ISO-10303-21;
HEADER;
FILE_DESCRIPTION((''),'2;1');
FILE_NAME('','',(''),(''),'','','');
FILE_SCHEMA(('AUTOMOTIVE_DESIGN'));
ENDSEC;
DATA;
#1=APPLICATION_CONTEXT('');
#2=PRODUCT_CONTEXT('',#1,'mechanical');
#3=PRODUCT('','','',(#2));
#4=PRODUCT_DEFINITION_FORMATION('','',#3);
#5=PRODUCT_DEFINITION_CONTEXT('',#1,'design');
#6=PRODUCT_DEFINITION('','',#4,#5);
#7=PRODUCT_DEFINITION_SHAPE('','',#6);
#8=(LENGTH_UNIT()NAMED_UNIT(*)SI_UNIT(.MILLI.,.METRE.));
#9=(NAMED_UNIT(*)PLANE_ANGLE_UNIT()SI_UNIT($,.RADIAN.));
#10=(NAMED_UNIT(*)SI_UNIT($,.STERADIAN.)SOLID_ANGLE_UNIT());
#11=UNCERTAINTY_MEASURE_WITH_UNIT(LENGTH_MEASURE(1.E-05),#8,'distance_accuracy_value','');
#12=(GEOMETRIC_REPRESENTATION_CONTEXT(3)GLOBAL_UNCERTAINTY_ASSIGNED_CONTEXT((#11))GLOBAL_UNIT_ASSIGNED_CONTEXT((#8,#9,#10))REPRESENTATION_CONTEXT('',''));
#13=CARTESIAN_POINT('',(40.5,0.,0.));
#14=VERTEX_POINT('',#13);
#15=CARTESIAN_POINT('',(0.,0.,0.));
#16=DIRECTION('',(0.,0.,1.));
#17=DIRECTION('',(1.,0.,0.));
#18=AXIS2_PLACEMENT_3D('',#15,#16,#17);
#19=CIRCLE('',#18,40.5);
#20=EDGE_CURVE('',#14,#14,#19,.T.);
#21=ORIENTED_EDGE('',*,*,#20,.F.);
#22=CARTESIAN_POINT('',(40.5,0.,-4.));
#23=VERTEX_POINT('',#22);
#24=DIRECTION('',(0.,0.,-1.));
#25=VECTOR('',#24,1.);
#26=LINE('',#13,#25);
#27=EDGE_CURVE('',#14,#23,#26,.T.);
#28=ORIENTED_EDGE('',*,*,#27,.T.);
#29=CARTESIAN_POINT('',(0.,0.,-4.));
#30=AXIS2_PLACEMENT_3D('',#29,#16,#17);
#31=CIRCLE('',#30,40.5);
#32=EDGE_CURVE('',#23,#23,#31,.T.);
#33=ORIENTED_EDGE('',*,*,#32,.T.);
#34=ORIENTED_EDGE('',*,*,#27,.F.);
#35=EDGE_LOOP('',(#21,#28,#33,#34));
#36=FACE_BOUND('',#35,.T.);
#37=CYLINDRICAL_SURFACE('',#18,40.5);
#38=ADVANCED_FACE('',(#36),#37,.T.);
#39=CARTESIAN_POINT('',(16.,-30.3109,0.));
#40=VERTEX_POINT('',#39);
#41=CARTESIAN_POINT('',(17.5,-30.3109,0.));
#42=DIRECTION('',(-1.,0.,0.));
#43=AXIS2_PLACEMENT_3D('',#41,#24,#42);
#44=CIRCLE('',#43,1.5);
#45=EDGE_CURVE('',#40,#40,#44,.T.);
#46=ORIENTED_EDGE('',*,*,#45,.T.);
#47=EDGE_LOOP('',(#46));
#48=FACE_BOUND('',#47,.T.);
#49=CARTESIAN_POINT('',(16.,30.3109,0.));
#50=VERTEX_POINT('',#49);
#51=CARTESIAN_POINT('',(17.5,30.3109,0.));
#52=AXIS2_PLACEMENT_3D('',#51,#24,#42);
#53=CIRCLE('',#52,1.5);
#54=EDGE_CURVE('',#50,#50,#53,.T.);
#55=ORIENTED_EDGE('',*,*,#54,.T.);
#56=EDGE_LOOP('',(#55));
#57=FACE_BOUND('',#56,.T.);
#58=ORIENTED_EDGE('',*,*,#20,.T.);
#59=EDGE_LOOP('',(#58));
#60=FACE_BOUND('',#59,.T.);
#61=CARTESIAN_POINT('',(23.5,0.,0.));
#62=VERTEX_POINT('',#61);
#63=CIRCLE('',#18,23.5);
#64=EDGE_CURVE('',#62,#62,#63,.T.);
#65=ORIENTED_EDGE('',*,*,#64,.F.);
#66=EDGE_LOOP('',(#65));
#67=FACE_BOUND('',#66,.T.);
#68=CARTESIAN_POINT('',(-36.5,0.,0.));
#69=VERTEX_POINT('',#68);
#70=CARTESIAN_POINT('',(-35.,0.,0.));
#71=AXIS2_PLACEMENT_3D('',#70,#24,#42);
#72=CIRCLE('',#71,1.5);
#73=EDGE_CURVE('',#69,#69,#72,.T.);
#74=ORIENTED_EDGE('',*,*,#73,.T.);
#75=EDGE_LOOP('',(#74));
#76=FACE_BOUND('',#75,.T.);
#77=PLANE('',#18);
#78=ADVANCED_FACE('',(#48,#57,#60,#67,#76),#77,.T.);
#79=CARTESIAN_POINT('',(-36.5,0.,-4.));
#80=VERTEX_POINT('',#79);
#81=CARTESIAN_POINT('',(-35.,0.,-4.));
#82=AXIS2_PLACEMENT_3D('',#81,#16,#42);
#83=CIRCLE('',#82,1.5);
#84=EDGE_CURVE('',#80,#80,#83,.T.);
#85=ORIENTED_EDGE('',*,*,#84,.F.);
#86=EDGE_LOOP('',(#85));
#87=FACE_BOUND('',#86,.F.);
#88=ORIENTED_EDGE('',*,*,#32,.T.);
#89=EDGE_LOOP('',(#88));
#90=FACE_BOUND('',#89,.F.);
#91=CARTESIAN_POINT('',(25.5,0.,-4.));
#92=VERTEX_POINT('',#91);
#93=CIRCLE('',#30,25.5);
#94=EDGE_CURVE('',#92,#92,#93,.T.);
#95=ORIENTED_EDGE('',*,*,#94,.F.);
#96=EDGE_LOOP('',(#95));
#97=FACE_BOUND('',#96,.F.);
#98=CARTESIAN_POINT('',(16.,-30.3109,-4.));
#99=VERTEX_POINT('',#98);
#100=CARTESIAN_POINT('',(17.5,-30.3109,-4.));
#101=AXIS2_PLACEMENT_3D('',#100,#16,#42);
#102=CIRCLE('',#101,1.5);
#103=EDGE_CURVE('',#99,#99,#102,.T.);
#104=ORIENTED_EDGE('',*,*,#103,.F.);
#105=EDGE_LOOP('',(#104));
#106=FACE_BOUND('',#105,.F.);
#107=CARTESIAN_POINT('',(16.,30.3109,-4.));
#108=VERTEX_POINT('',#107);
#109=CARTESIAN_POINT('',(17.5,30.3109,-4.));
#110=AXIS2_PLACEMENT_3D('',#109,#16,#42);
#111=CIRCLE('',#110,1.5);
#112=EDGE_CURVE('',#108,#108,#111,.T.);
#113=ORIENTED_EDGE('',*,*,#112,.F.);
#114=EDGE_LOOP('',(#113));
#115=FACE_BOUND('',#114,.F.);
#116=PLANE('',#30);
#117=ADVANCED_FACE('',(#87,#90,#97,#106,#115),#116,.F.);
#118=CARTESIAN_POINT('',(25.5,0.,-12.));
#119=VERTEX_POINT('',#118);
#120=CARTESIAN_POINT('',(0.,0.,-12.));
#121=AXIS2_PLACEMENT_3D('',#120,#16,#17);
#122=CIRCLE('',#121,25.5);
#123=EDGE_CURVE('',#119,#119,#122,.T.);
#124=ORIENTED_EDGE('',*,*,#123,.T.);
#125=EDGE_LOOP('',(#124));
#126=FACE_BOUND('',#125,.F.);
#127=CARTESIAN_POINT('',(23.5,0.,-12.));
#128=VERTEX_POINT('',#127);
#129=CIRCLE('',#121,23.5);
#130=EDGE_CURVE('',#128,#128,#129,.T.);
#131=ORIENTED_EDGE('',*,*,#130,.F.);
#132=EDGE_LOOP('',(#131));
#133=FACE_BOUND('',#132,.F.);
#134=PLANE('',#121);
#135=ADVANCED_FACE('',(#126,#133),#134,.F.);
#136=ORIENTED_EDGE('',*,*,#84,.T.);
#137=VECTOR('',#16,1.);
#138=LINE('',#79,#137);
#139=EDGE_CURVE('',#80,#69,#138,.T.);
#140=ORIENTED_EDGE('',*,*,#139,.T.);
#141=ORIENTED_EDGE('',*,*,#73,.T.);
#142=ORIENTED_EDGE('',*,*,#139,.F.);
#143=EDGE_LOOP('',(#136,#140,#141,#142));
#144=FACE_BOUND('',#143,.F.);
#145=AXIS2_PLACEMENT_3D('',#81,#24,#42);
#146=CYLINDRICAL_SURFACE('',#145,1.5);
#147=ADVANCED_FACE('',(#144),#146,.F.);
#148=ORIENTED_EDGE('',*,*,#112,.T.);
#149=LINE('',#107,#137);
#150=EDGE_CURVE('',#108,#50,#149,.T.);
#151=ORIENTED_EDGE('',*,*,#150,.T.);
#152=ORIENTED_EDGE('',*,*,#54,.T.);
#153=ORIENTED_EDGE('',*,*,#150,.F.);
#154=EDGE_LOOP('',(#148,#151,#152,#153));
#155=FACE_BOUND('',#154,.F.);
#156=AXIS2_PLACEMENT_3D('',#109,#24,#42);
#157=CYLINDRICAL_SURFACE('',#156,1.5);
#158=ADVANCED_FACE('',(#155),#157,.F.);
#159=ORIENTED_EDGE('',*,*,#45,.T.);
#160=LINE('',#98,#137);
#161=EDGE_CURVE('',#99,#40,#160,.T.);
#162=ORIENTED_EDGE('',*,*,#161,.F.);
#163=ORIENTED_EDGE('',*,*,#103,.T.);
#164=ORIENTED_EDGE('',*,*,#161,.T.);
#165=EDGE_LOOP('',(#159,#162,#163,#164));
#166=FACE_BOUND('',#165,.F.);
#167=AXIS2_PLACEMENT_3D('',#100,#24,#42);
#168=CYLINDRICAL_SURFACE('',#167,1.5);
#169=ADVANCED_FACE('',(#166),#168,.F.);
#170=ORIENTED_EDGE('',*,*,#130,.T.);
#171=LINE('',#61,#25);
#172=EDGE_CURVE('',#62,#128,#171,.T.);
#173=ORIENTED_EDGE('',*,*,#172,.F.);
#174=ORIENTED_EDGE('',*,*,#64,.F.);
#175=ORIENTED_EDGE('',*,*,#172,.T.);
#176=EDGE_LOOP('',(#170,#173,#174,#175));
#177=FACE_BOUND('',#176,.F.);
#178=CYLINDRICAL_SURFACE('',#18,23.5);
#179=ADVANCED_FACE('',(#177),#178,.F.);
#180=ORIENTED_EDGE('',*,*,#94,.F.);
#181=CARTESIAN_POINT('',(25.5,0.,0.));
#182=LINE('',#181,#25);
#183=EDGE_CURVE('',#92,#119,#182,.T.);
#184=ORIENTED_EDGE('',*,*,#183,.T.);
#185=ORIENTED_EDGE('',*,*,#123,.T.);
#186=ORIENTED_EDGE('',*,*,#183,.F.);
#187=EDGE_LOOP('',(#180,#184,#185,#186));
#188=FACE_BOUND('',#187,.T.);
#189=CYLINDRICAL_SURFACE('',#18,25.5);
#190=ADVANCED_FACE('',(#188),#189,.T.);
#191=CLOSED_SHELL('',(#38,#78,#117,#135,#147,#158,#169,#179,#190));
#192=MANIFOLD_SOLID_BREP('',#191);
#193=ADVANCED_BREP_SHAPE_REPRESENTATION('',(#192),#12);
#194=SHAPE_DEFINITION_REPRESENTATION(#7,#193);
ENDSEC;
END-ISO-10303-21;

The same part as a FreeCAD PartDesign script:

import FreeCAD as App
import Part
import Sketcher
from FreeCAD import Vector
Q = App.Units.Quantity

doc = App.newDocument("Part")
params = doc.addObject("Spreadsheet::Sheet", "Params")
for row, (alias, value) in enumerate([
    ("sketch1_diameter", "81 mm"),
    ("sketch1_diameter2", "51 mm"),
    ("pad1_length", "4 mm"),
    ("sketch2_diameter", "51 mm"),
    ("sketch2_diameter2", "47 mm"),
    ("pad2_length", "12 mm"),
    ("sketch3_diameter", "3 mm"),
    ("pocket1_length", "12 mm"),
], start=1):
    params.set(f"A{row}", alias)
    params.set(f"B{row}", "=" + value)
    params.setAlias(f"B{row}", alias)

body = doc.addObject("PartDesign::Body", "Body")

# Sketch on XY plane
sketch1 = doc.addObject("Sketcher::SketchObject", "Sketch")
body.addObject(sketch1)
sketch1.AttachmentSupport = (doc.XY_Plane, [""])
sketch1.MapMode = "FlatFace"
sketch1.addGeometry(Part.Circle(Vector(0, 0, 0), Vector(0, 0, 1), 40), False)
sketch1.addGeometry(Part.Circle(Vector(0, 0, 0), Vector(0, 0, 1), 26), False)
sketch1.addConstraint(Sketcher.Constraint("Coincident", 0, 3, -1, 1))
sketch1.addConstraint(Sketcher.Constraint("Coincident", 1, 3, -1, 1))
sketch1.addConstraint(Sketcher.Constraint("Diameter", 0, Q("81 mm")))
sketch1.addConstraint(Sketcher.Constraint("Diameter", 1, Q("51 mm")))
sketch1.setExpression("Constraints[2]", "Params.sketch1_diameter")
sketch1.setExpression("Constraints[3]", "Params.sketch1_diameter2")
pad1 = doc.addObject("PartDesign::Pad", "Pad")
body.addObject(pad1)
pad1.Profile = sketch1
pad1.setExpression("Length", "Params.pad1_length")
pad1.Reversed = True

# Sketch on XY plane
sketch2 = doc.addObject("Sketcher::SketchObject", "Sketch001")
body.addObject(sketch2)
sketch2.AttachmentSupport = (doc.XY_Plane, [""])
sketch2.MapMode = "FlatFace"
sketch2.addGeometry(Part.Circle(Vector(0, 0, 0), Vector(0, 0, 1), 26), False)
sketch2.addGeometry(Part.Circle(Vector(0, 0, 0), Vector(0, 0, 1), 24), False)
sketch2.addConstraint(Sketcher.Constraint("Coincident", 0, 3, -1, 1))
sketch2.addConstraint(Sketcher.Constraint("Coincident", 1, 3, -1, 1))
sketch2.addConstraint(Sketcher.Constraint("Diameter", 0, Q("51 mm")))
sketch2.addConstraint(Sketcher.Constraint("Diameter", 1, Q("47 mm")))
sketch2.setExpression("Constraints[2]", "Params.sketch2_diameter")
sketch2.setExpression("Constraints[3]", "Params.sketch2_diameter2")
pad2 = doc.addObject("PartDesign::Pad", "Pad001")
body.addObject(pad2)
pad2.Profile = sketch2
pad2.setExpression("Length", "Params.pad2_length")
pad2.Reversed = True

# Sketch on XY plane
sketch3 = doc.addObject("Sketcher::SketchObject", "Sketch002")
body.addObject(sketch3)
sketch3.AttachmentSupport = (doc.XY_Plane, [""])
sketch3.MapMode = "FlatFace"
sketch3.AttachmentOffset = App.Placement(Vector(0, 0, -4), App.Rotation())
sketch3.addGeometry(Part.Circle(Vector(-35, 0, 0), Vector(0, 0, 1), 1.5), False)
sketch3.addGeometry(Part.Circle(Vector(17.5, 30.3, 0), Vector(0, 0, 1), 1.5), False)
sketch3.addGeometry(Part.Circle(Vector(17.5, -30.3, 0), Vector(0, 0, 1), 1.5), False)
sketch3.addConstraint(Sketcher.Constraint("Equal", 0, 1))
sketch3.addConstraint(Sketcher.Constraint("Equal", 1, 2))
sketch3.addConstraint(Sketcher.Constraint("Symmetric", 1, 3, 2, 3, -1))
sketch3.addConstraint(Sketcher.Constraint("PointOnObject", 0, 3, -1))
sketch3.addConstraint(Sketcher.Constraint("Diameter", 0, Q("3 mm")))
sketch3.addConstraint(Sketcher.Constraint("DistanceX", 0, 3, -1, 1, Q("35 mm")))
sketch3.addConstraint(Sketcher.Constraint("DistanceX", -1, 1, 1, 3, Q("17.5 mm")))
sketch3.addConstraint(Sketcher.Constraint("DistanceY", -1, 1, 1, 3, Q("30.311 mm")))
sketch3.setExpression("Constraints[4]", "Params.sketch3_diameter")
pocket1 = doc.addObject("PartDesign::Pocket", "Pocket")
body.addObject(pocket1)
pocket1.Profile = sketch3
pocket1.setExpression("Length", "Params.pocket1_length")
pocket1.Reversed = True

doc.recompute()
